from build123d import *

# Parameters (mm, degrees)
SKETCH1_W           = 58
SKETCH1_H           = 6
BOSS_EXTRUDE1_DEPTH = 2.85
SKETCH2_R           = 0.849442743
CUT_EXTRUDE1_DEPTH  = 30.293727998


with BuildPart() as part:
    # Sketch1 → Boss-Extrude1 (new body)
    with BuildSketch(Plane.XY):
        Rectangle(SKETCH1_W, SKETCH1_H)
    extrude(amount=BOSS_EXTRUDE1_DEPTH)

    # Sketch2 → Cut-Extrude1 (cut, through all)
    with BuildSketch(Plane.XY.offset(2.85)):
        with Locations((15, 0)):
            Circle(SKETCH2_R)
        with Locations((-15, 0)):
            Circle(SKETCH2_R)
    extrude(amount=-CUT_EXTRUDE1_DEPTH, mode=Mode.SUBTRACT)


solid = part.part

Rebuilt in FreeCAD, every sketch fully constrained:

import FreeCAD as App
import Part
import Sketcher
from FreeCAD import Vector

doc = App.newDocument("Part")
body = doc.addObject("PartDesign::Body", "Body")

# Sketch on XY plane
sketch1 = body.newObject("Sketcher::SketchObject", "Sketch")
sketch1.AttachmentSupport = (doc.getObject("XY_Plane"), [""])
sketch1.MapMode = "FlatFace"
sketch1.addGeometry([
    Part.LineSegment(Vector(-29, 3, 0), Vector(-29, -3, 0)),
    Part.LineSegment(Vector(-29, -3, 0), Vector(29, -3, 0)),
    Part.LineSegment(Vector(29, -3, 0), Vector(29, 3, 0)),
    Part.LineSegment(Vector(29, 3, 0), Vector(-29, 3, 0)),
], False)
sketch1.addConstraint([
    Sketcher.Constraint("Coincident", 0, 2, 1, 1),
    Sketcher.Constraint("Coincident", 1, 2, 2, 1),
    Sketcher.Constraint("Coincident", 2, 2, 3, 1),
    Sketcher.Constraint("Coincident", 3, 2, 0, 1),
    Sketcher.Constraint("Vertical", 0),
    Sketcher.Constraint("Horizontal", 1),
    Sketcher.Constraint("Vertical", 2),
    Sketcher.Constraint("Horizontal", 3),
    Sketcher.Constraint("Symmetric", 0, 2, 2, 2, -1, 1),
    Sketcher.Constraint("DistanceX", 1, 1, 1, 2, 58.0),
    Sketcher.Constraint("DistanceY", 0, 2, 0, 1, 6.0),
])
pad1 = body.newObject("PartDesign::Pad", "Pad")
pad1.Profile = sketch1
pad1.Length = 2.85

# Sketch on XY plane
sketch2 = body.newObject("Sketcher::SketchObject", "Sketch001")
sketch2.AttachmentSupport = (doc.getObject("XY_Plane"), [""])
sketch2.MapMode = "FlatFace"
sketch2.AttachmentOffset = App.Placement(Vector(0, 0, 2.85), App.Rotation())
sketch2.addGeometry([
    Part.Circle(Vector(15, 0, 0), Vector(0, 0, 1), 0.8),
    Part.Circle(Vector(-15, 0, 0), Vector(0, 0, 1), 0.8),
], False)
sketch2.addConstraint([
    Sketcher.Constraint("Equal", 0, 1),
    Sketcher.Constraint("Symmetric", 0, 3, 1, 3, -1, 1),
    Sketcher.Constraint("PointOnObject", 0, 3, -1),
    Sketcher.Constraint("DistanceX", -1, 1, 0, 3, 15.0),
    Sketcher.Constraint("Diameter", 0, 1.698885),
])
pocket1 = body.newObject("PartDesign::Pocket", "Pocket")
pocket1.Profile = sketch2
pocket1.Type = "ThroughAll"

doc.recompute()
